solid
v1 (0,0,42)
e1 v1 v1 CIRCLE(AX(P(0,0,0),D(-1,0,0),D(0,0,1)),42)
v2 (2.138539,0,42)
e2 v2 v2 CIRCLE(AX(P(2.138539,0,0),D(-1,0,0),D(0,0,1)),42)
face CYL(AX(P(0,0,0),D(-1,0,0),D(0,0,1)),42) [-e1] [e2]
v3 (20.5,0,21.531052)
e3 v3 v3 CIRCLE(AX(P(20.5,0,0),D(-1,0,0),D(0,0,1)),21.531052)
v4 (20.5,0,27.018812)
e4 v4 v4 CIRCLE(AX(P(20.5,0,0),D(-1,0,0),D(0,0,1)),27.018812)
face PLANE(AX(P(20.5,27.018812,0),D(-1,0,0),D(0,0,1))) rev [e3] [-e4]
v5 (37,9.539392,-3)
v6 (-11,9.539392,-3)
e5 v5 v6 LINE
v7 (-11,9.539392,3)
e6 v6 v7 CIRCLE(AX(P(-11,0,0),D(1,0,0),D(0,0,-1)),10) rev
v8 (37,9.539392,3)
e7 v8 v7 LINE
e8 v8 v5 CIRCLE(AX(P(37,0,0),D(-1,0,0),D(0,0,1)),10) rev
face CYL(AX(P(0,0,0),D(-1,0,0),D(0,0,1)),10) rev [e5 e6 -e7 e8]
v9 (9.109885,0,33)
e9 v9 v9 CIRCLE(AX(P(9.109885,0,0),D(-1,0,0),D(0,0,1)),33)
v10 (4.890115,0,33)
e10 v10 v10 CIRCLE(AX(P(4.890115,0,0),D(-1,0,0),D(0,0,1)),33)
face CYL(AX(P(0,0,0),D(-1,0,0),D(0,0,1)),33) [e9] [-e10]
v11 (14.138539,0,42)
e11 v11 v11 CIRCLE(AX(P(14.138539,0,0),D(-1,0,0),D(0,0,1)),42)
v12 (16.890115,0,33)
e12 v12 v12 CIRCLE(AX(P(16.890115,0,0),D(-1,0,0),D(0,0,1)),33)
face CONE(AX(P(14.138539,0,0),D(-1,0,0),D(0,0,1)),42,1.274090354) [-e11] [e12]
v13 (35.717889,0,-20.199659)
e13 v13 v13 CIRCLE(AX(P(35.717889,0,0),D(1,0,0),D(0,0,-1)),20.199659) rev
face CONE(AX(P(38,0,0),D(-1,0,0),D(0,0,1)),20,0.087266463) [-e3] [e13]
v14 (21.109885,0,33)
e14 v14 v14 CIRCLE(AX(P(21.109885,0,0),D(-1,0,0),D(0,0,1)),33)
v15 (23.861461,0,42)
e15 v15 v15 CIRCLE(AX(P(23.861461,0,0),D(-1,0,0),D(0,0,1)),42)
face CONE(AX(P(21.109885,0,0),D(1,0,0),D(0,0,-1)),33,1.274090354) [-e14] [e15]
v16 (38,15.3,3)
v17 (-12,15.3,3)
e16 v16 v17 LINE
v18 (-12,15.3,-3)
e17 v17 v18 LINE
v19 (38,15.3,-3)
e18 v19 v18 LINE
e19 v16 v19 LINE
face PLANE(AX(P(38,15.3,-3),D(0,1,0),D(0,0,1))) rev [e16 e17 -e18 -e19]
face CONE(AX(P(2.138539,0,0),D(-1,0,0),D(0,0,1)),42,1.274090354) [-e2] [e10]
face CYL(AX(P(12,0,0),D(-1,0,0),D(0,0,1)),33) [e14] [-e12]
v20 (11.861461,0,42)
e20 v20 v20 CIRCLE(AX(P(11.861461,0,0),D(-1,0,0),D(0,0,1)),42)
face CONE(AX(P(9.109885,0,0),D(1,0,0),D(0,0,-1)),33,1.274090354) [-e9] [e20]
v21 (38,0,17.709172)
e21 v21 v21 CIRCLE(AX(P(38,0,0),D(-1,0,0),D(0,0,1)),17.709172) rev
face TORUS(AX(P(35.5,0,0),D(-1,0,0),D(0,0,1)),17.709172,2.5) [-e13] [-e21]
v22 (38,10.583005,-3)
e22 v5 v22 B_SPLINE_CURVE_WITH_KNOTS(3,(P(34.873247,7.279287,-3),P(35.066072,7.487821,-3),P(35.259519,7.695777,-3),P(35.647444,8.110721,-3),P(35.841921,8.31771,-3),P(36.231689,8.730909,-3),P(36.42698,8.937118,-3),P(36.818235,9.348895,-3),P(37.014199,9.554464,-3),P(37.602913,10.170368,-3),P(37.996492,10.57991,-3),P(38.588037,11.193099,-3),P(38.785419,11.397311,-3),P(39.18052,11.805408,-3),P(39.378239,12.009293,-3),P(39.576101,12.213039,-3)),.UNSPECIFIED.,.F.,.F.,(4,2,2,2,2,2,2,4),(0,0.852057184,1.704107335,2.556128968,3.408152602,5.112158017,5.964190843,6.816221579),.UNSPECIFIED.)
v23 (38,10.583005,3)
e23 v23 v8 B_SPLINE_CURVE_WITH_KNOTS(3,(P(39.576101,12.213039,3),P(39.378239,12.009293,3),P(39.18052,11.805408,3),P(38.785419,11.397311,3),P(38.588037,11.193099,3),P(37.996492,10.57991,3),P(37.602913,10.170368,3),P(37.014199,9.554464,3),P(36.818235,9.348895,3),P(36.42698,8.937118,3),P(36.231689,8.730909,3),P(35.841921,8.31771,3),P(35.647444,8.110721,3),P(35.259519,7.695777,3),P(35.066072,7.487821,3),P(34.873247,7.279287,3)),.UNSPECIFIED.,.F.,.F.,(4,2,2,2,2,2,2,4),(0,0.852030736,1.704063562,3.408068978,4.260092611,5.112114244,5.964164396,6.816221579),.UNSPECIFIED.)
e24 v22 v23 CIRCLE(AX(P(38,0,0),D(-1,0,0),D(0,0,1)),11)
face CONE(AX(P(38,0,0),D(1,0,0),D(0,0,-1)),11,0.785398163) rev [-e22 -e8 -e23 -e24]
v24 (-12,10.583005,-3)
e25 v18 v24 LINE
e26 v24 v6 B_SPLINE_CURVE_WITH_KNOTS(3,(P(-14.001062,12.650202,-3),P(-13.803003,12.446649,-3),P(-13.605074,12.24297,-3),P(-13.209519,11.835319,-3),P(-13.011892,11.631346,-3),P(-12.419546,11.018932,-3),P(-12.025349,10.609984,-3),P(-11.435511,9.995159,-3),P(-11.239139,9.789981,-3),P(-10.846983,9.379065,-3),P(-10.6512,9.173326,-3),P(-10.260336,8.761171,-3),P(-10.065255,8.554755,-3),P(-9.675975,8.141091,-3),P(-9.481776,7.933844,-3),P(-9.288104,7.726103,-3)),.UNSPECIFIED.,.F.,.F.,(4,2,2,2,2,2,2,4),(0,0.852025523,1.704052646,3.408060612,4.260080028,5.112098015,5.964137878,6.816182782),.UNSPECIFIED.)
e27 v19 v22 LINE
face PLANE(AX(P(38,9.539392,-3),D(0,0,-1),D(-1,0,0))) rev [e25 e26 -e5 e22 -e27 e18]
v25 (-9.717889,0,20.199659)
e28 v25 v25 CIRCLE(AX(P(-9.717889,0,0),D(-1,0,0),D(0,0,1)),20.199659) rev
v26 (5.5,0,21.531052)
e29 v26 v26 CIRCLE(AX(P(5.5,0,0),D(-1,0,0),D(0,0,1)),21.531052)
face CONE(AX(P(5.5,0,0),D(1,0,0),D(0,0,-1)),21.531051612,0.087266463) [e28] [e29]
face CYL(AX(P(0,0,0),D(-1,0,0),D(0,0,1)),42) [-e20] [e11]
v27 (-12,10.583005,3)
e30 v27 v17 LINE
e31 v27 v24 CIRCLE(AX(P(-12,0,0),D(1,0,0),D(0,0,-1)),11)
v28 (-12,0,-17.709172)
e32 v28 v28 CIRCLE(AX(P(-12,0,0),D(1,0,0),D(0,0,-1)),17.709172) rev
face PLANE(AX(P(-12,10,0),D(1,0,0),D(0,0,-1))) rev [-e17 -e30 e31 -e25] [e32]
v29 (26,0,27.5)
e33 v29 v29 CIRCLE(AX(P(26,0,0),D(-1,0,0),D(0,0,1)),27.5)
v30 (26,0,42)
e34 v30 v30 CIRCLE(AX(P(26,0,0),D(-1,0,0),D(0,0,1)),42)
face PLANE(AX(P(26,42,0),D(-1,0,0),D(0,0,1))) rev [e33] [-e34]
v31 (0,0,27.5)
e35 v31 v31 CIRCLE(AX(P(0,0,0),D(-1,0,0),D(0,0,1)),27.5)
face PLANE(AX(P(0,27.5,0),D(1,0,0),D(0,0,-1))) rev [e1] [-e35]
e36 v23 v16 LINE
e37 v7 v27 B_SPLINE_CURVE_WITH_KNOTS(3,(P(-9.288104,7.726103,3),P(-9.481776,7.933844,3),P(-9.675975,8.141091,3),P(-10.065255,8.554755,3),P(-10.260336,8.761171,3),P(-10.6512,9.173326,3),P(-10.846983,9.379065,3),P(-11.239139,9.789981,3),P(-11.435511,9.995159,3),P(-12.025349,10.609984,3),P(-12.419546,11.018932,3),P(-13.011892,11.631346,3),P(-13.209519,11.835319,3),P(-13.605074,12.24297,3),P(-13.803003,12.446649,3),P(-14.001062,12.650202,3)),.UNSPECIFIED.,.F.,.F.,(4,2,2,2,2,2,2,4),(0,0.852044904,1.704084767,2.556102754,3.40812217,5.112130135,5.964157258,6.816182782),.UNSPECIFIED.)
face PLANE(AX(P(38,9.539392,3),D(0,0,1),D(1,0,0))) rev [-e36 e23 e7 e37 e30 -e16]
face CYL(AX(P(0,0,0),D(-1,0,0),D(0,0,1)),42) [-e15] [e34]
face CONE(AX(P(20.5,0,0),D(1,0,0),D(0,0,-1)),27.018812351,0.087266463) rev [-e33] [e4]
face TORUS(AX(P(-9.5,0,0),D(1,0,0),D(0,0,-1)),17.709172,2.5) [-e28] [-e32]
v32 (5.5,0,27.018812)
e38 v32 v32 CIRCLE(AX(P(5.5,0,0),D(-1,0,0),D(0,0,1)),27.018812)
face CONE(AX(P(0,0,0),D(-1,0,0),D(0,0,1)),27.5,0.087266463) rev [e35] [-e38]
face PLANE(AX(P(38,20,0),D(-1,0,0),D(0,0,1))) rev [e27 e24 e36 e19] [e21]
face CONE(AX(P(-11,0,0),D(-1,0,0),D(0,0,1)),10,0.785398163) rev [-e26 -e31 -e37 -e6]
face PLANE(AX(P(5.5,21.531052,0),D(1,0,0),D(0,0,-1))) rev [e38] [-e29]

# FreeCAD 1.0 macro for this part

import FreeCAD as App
import Part
import Sketcher
Q = App.Units.Quantity


def edges_at(feature, points):
    """Names of the edges that pass closest to the given points."""
    edges = feature.Shape.Edges
    near = lambda p: min(range(len(edges)), key=lambda i: edges[i].distToShape(Part.Vertex(*p))[0])
    return sorted({f"Edge{near(p) + 1}" for p in points})

doc = App.newDocument("Part")
params = doc.addObject("Spreadsheet::Sheet", "Params")
for row, (alias, value) in enumerate([
    ("sketch1_width", "50 mm"),
    ("sketch1_width2", "26 mm"),
    ("sketch1_height", "10 mm"),
    ("sketch1_height2", "14.5 mm"),
    ("revolution_angle", "360 deg"),
    ("groove_angle", "360 deg"),
    ("linearpattern_pitch", "12 mm"),
    ("chamfer_size", "1 mm"),
    ("sketch3_height", "6 mm"),
    ("fillet_radius", "2.5 mm"),
], start=1):
    params.set(f"A{row}", alias)
    params.set(f"B{row}", "=" + value)
    params.setAlias(f"B{row}", alias)

body = doc.addObject("PartDesign::Body", "Body")

# Sketch on XY plane
sketch1 = body.newObject("Sketcher::SketchObject", "Sketch")
sketch1.AttachmentSupport = (doc.getObject("XY_Plane"), [""])
sketch1.MapMode = "FlatFace"
sketch1.addGeometry([
    Part.LineSegment(App.Vector(-12, 20, 0), App.Vector(-12, 10, 0)),  # 0
    Part.LineSegment(App.Vector(-12, 10, 0), App.Vector(38, 10, 0)),  # 1
    Part.LineSegment(App.Vector(38, 10, 0), App.Vector(38, 20, 0)),  # 2
    Part.LineSegment(App.Vector(38, 20, 0), App.Vector(20, 22, 0)),  # 3
    Part.LineSegment(App.Vector(20, 22, 0), App.Vector(20, 27, 0)),  # 4
    Part.LineSegment(App.Vector(20, 27, 0), App.Vector(26, 28, 0)),  # 5
    Part.LineSegment(App.Vector(26, 28, 0), App.Vector(26, 42, 0)),  # 6
    Part.LineSegment(App.Vector(26, 42, 0), App.Vector(0, 42, 0)),  # 7
    Part.LineSegment(App.Vector(0, 42, 0), App.Vector(0, 28, 0)),  # 8
    Part.LineSegment(App.Vector(0, 28, 0), App.Vector(6, 27, 0)),  # 9
    Part.LineSegment(App.Vector(6, 27, 0), App.Vector(6, 22, 0)),  # 10
    Part.LineSegment(App.Vector(6, 22, 0), App.Vector(-12, 20, 0)),  # 11
], False)
sketch1.addConstraint([
    Sketcher.Constraint("Coincident", 0, 2, 1, 1),
    Sketcher.Constraint("Coincident", 1, 2, 2, 1),
    Sketcher.Constraint("Coincident", 2, 2, 3, 1),
    Sketcher.Constraint("Coincident", 3, 2, 4, 1),
    Sketcher.Constraint("Coincident", 4, 2, 5, 1),
    Sketcher.Constraint("Coincident", 5, 2, 6, 1),
    Sketcher.Constraint("Coincident", 6, 2, 7, 1),
    Sketcher.Constraint("Coincident", 7, 2, 8, 1),
    Sketcher.Constraint("Coincident", 8, 2, 9, 1),
    Sketcher.Constraint("Coincident", 9, 2, 10, 1),
    Sketcher.Constraint("Coincident", 10, 2, 11, 1),
    Sketcher.Constraint("Coincident", 11, 2, 0, 1),
    Sketcher.Constraint("Vertical", 0),
    Sketcher.Constraint("Horizontal", 1),
    Sketcher.Constraint("Vertical", 2),
    Sketcher.Constraint("Vertical", 4),
    Sketcher.Constraint("Vertical", 6),
    Sketcher.Constraint("Horizontal", 7),
    Sketcher.Constraint("Vertical", 8),
    Sketcher.Constraint("Vertical", 10),
    Sketcher.Constraint("PointOnObject", 7, 2, -2),
    Sketcher.Constraint("Parallel", 3, 9),
    Sketcher.Constraint("Parallel", 5, 11),
    Sketcher.Constraint("Horizontal", 5, 2, 8, 2),
    Sketcher.Constraint("Horizontal", 4, 2, 9, 2),
    Sketcher.Constraint("Horizontal", 3, 2, 10, 2),
    Sketcher.Constraint("Horizontal", 2, 2, 11, 2),
    Sketcher.Constraint("Equal", 5, 9),
    Sketcher.Constraint("DistanceX", 1, 1, 1, 2, Q("50 mm")),
    Sketcher.Constraint("DistanceX", 7, 2, 7, 1, Q("26 mm")),
    Sketcher.Constraint("DistanceY", 0, 2, 0, 1, Q("10 mm")),
    Sketcher.Constraint("Angle", 3, Q("175 deg")),
    Sketcher.Constraint("DistanceY", 6, 1, 6, 2, Q("14.5 mm")),
    Sketcher.Constraint("DistanceY", -1, 1, 0, 2, Q("10 mm")),
    Sketcher.Constraint("DistanceY", -1, 1, 6, 2, Q("42 mm")),
    Sketcher.Constraint("DistanceX", 9, 2, 4, 2, Q("15 mm")),
])
sketch1.setExpression("Constraints[28]", "Params.sketch1_width")
sketch1.setExpression("Constraints[29]", "Params.sketch1_width2")
sketch1.setExpression("Constraints[30]", "Params.sketch1_height")
sketch1.setExpression("Constraints[32]", "Params.sketch1_height2")
revolution = body.newObject("PartDesign::Revolution", "Revolution")
revolution.Profile = sketch1
revolution.ReferenceAxis = (sketch1, ["H_Axis"])
revolution.setExpression("Angle", "Params.revolution_angle")

# Sketch on XY plane
sketch2 = body.newObject("Sketcher::SketchObject", "Sketch001")
sketch2.AttachmentSupport = (doc.getObject("XY_Plane"), [""])
sketch2.MapMode = "FlatFace"
sketch2.addGeometry([
    Part.LineSegment(App.Vector(9.1, 33, 0), App.Vector(11.9, 42, 0)),
    Part.LineSegment(App.Vector(11.9, 42, 0), App.Vector(2.1, 42, 0)),
    Part.LineSegment(App.Vector(2.1, 42, 0), App.Vector(4.9, 33, 0)),
    Part.LineSegment(App.Vector(4.9, 33, 0), App.Vector(9.1, 33, 0)),
], False)
sketch2.addConstraint([
    Sketcher.Constraint("Coincident", 0, 2, 1, 1),
    Sketcher.Constraint("Coincident", 1, 2, 2, 1),
    Sketcher.Constraint("Coincident", 2, 2, 3, 1),
    Sketcher.Constraint("Coincident", 3, 2, 0, 1),
    Sketcher.Constraint("Horizontal", 1),
    Sketcher.Constraint("Horizontal", 3),
    Sketcher.Constraint("Equal", 0, 2),
    Sketcher.Constraint("Angle", 0, Q("73 deg")),
    Sketcher.Constraint("DistanceY", -1, 1, 0, 2, Q("42 mm")),
    Sketcher.Constraint("DistanceY", -1, 1, 2, 2, Q("33 mm")),
    Sketcher.Constraint("DistanceX", 3, 1, 3, 2, Q("4.21977 mm")),
    Sketcher.Constraint("DistanceX", -1, 1, 0, 2, Q("11.861461 mm")),
])
groove = body.newObject("PartDesign::Groove", "Groove")
groove.Profile = sketch2
groove.ReferenceAxis = (sketch2, ["H_Axis"])
groove.setExpression("Angle", "Params.groove_angle")
doc.recompute()

linearpattern = body.newObject("PartDesign::LinearPattern", "LinearPattern")
linearpattern.Originals = [groove]
linearpattern.Direction = (doc.getObject("X_Axis"), [""])
linearpattern.Mode = "offset"
linearpattern.setExpression("Offset", "Params.linearpattern_pitch")
linearpattern.Occurrences = 2
body.Tip = linearpattern
doc.recompute()

chamfer = body.newObject("PartDesign::Chamfer", "Chamfer")
chamfer.Base = (linearpattern, edges_at(linearpattern, [(-12, 0, -10), (38, 0, -10)]))
chamfer.setExpression("Size", "Params.chamfer_size")

# Sketch on YZ plane
sketch3 = body.newObject("Sketcher::SketchObject", "Sketch002")
sketch3.AttachmentSupport = (doc.getObject("YZ_Plane"), [""])
sketch3.MapMode = "FlatFace"
sketch3.AttachmentOffset = App.Placement(App.Vector(0, 0, -12), App.Rotation())
sketch3.addGeometry([
    Part.LineSegment(App.Vector(15, -3, 0), App.Vector(10, -3, 0)),
    Part.LineSegment(App.Vector(10, -3, 0), App.Vector(10, 3, 0)),
    Part.LineSegment(App.Vector(10, 3, 0), App.Vector(15, 3, 0)),
    Part.LineSegment(App.Vector(15, 3, 0), App.Vector(15, -3, 0)),
], False)
sketch3.addConstraint([
    Sketcher.Constraint("Coincident", 0, 2, 1, 1),
    Sketcher.Constraint("Coincident", 1, 2, 2, 1),
    Sketcher.Constraint("Coincident", 2, 2, 3, 1),
    Sketcher.Constraint("Coincident", 3, 2, 0, 1),
    Sketcher.Constraint("Horizontal", 0),
    Sketcher.Constraint("Vertical", 1),
    Sketcher.Constraint("Horizontal", 2),
    Sketcher.Constraint("Vertical", 3),
    Sketcher.Constraint("DistanceY", 1, 1, 1, 2, Q("6 mm")),
    Sketcher.Constraint("DistanceY", 0, 2, -1, 1, Q("3 mm")),
    Sketcher.Constraint("DistanceX", -1, 1, 2, 2, Q("15.3 mm")),
    Sketcher.Constraint("DistanceX", 0, 2, 0, 1, Q("5.760608 mm")),
])
sketch3.setExpression("Constraints[8]", "Params.sketch3_height")
pocket1 = body.newObject("PartDesign::Pocket", "Pocket")
pocket1.Profile = sketch3
pocket1.Type = "ThroughAll"
pocket1.Reversed = True
doc.recompute()

fillet = body.newObject("PartDesign::Fillet", "Fillet")
fillet.Base = (pocket1, edges_at(pocket1, [(-12, 0, -20), (38, 0, -20)]))
fillet.setExpression("Radius", "Params.fillet_radius")

doc.recompute()
